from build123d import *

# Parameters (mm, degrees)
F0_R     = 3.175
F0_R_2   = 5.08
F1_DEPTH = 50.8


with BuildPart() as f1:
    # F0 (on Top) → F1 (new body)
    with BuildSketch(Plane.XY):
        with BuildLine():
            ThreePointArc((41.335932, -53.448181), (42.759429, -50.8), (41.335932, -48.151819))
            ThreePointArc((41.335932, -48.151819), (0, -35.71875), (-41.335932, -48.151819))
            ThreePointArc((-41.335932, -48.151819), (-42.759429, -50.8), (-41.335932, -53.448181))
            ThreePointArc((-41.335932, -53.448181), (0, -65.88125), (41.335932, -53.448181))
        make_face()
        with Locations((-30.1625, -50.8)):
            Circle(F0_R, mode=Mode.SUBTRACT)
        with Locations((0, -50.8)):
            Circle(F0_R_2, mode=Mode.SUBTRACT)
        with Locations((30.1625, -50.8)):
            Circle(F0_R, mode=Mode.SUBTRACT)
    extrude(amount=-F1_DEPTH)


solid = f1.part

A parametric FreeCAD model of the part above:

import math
import FreeCAD as App
import Part
import Sketcher
from FreeCAD import Vector
Q = App.Units.Quantity

doc = App.newDocument("Part")
params = doc.addObject("Spreadsheet::Sheet", "Params")
for row, (alias, value) in enumerate([
    ("sketch1_diameter", "0.4 in"),
    ("sketch1_diameter2", "0.25 in"),
    ("pad1_length", "2 in"),
], start=1):
    params.set(f"A{row}", alias)
    params.set(f"B{row}", "=" + value)
    params.setAlias(f"B{row}", alias)

body = doc.addObject("PartDesign::Body", "Body")

sketch1 = doc.addObject("Sketcher::SketchObject", "Sketch")
body.addObject(sketch1)
sketch1.AttachmentSupport = (doc.XY_Plane, [""])
sketch1.MapMode = "FlatFace"
sketch1.addGeometry(Part.ArcOfCircle(Part.Circle(Vector(39.6, -50.8, 0), Vector(0, 0, 1), 3.2), math.radians(-57), math.radians(57)), False)
sketch1.addGeometry(Part.ArcOfCircle(Part.Circle(Vector(0, -110.6, 0), Vector(0, 0, 1), 74.9), math.radians(57), math.radians(123)), False)
sketch1.addGeometry(Part.ArcOfCircle(Part.Circle(Vector(-39.6, -50.8, 0), Vector(0, 0, 1), 3.2), math.radians(123), math.radians(237)), False)
sketch1.addGeometry(Part.ArcOfCircle(Part.Circle(Vector(0, 9, 0), Vector(0, 0, 1), 74.9), math.radians(-123), math.radians(-57)), False)
sketch1.addGeometry(Part.Circle(Vector(-30.2, -50.8, 0), Vector(0, 0, 1), 3.2), False)
sketch1.addGeometry(Part.Circle(Vector(0, -50.8, 0), Vector(0, 0, 1), 5.1), False)
sketch1.addGeometry(Part.Circle(Vector(30.2, -50.8, 0), Vector(0, 0, 1), 3.2), False)
sketch1.addConstraint(Sketcher.Constraint("Tangent", 0, 2, 1, 1))
sketch1.addConstraint(Sketcher.Constraint("Tangent", 1, 2, 2, 1))
sketch1.addConstraint(Sketcher.Constraint("Tangent", 2, 2, 3, 1))
sketch1.addConstraint(Sketcher.Constraint("Tangent", 3, 2, 0, 1))
sketch1.addConstraint(Sketcher.Constraint("Equal", 0, 2))
sketch1.addConstraint(Sketcher.Constraint("Equal", 1, 3))
sketch1.addConstraint(Sketcher.Constraint("Equal", 2, 4))
sketch1.addConstraint(Sketcher.Constraint("Equal", 4, 6))
sketch1.addConstraint(Sketcher.Constraint("Symmetric", 0, 3, 2, 3, -2))
sketch1.addConstraint(Sketcher.Constraint("Symmetric", 4, 3, 6, 3, -2))
sketch1.addConstraint(Sketcher.Constraint("PointOnObject", 5, 3, -2))
sketch1.addConstraint(Sketcher.Constraint("Horizontal", 2, 3, 4, 3))
sketch1.addConstraint(Sketcher.Constraint("Horizontal", 4, 3, 5, 3))
sketch1.addConstraint(Sketcher.Constraint("Diameter", 5, Q("0.4 in")))
sketch1.addConstraint(Sketcher.Constraint("Diameter", 4, Q("0.25 in")))
sketch1.addConstraint(Sketcher.Constraint("DistanceY", 0, 3, -1, 1, Q("2 in")))
sketch1.addConstraint(Sketcher.Constraint("DistanceX", 4, 3, -1, 1, Q("1.1875 in")))
sketch1.addConstraint(Sketcher.Constraint("Radius", 1, 74.930835))
sketch1.addConstraint(Sketcher.Constraint("DistanceX", -1, 1, 0, 3, 39.584429))
sketch1.setExpression("Constraints[13]", "Params.sketch1_diameter")
sketch1.setExpression("Constraints[14]", "Params.sketch1_diameter2")
pad1 = doc.addObject("PartDesign::Pad", "Pad")
body.addObject(pad1)
pad1.Profile = sketch1
pad1.setExpression("Length", "Params.pad1_length")
pad1.Reversed = True

doc.recompute()
